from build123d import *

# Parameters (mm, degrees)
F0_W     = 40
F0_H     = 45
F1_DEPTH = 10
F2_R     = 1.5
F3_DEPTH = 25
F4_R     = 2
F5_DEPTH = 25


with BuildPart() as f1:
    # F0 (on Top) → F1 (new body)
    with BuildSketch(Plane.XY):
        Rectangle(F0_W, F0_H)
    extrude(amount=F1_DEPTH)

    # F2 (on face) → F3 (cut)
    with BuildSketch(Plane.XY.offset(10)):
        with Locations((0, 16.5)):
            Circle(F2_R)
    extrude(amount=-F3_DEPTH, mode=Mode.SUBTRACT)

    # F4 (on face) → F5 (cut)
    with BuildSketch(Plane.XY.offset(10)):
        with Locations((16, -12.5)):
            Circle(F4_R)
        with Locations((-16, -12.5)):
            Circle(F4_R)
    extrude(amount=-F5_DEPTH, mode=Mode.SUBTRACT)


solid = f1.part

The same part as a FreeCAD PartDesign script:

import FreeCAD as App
import Part
import Sketcher
Q = App.Units.Quantity

doc = App.newDocument("Part")
body = doc.addObject("PartDesign::Body", "Body")

# Sketch on XY plane
sketch1 = body.newObject("Sketcher::SketchObject", "Sketch")
sketch1.AttachmentSupport = (doc.getObject("XY_Plane"), [""])
sketch1.MapMode = "FlatFace"
sketch1.addGeometry([
    Part.LineSegment(App.Vector(-20, 22.5, 0), App.Vector(-20, -22.5, 0)),
    Part.LineSegment(App.Vector(-20, -22.5, 0), App.Vector(20, -22.5, 0)),
    Part.LineSegment(App.Vector(20, -22.5, 0), App.Vector(20, 22.5, 0)),
    Part.LineSegment(App.Vector(20, 22.5, 0), App.Vector(-20, 22.5, 0)),
], False)
sketch1.addConstraint([
    Sketcher.Constraint("Coincident", 0, 2, 1, 1),
    Sketcher.Constraint("Coincident", 1, 2, 2, 1),
    Sketcher.Constraint("Coincident", 2, 2, 3, 1),
    Sketcher.Constraint("Coincident", 3, 2, 0, 1),
    Sketcher.Constraint("Vertical", 0),
    Sketcher.Constraint("Horizontal", 1),
    Sketcher.Constraint("Vertical", 2),
    Sketcher.Constraint("Horizontal", 3),
    Sketcher.Constraint("Symmetric", 0, 2, 2, 2, -1, 1),
    Sketcher.Constraint("DistanceX", 1, 1, 1, 2, Q("40 mm")),
    Sketcher.Constraint("DistanceY", 0, 2, 0, 1, Q("45 mm")),
])
pad1 = body.newObject("PartDesign::Pad", "Pad")
pad1.Profile = sketch1
pad1.Length = 10

# Sketch on XY plane
sketch2 = body.newObject("Sketcher::SketchObject", "Sketch001")
sketch2.AttachmentSupport = (doc.getObject("XY_Plane"), [""])
sketch2.MapMode = "FlatFace"
sketch2.AttachmentOffset = App.Placement(App.Vector(0, 0, 10), App.Rotation())
sketch2.addGeometry(Part.Circle(App.Vector(0, 16.5, 0), App.Vector(0, 0, 1), 1.5), False)
sketch2.addConstraint([
    Sketcher.Constraint("PointOnObject", 0, 3, -2),
    Sketcher.Constraint("Diameter", 0, Q("3 mm")),
    Sketcher.Constraint("DistanceY", -1, 1, 0, 3, Q("16.5 mm")),
])
pocket1 = body.newObject("PartDesign::Pocket", "Pocket")
pocket1.Profile = sketch2
pocket1.Length = 25

# Sketch on XY plane
sketch3 = body.newObject("Sketcher::SketchObject", "Sketch002")
sketch3.AttachmentSupport = (doc.getObject("XY_Plane"), [""])
sketch3.MapMode = "FlatFace"
sketch3.AttachmentOffset = App.Placement(App.Vector(0, 0, 10), App.Rotation())
sketch3.addGeometry([
    Part.Circle(App.Vector(16, -12.5, 0), App.Vector(0, 0, 1), 2),
    Part.Circle(App.Vector(-16, -12.5, 0), App.Vector(0, 0, 1), 2),
], False)
sketch3.addConstraint([
    Sketcher.Constraint("Equal", 0, 1),
    Sketcher.Constraint("Symmetric", 0, 3, 1, 3, -2),
    Sketcher.Constraint("Diameter", 0, Q("4 mm")),
    Sketcher.Constraint("DistanceX", -1, 1, 0, 3, Q("16 mm")),
    Sketcher.Constraint("DistanceY", 0, 3, -1, 1, Q("12.5 mm")),
])
pocket2 = body.newObject("PartDesign::Pocket", "Pocket001")
pocket2.Profile = sketch3
pocket2.Length = 25

doc.recompute()
